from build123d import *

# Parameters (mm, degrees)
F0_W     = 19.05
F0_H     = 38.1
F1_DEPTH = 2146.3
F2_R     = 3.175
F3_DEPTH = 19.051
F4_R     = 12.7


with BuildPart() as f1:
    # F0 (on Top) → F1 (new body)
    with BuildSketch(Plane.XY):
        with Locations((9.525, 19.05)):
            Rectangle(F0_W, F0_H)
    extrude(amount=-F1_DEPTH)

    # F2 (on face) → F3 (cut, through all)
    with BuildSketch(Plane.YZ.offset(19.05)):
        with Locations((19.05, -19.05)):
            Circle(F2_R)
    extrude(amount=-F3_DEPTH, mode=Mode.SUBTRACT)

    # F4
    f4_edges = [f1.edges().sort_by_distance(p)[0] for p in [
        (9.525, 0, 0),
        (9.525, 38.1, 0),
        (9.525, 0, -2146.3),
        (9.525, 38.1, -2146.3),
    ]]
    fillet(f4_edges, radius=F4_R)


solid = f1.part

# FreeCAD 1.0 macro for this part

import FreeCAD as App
import Part
import Sketcher
from FreeCAD import Vector
Q = App.Units.Quantity


def edges_at(feature, points):
    """Names of the edges that pass closest to the given points."""
    edges = feature.Shape.Edges
    near = lambda p: min(range(len(edges)), key=lambda i: edges[i].distToShape(Part.Vertex(*p))[0])
    return sorted({f"Edge{near(p) + 1}" for p in points})

doc = App.newDocument("Part")
body = doc.addObject("PartDesign::Body", "Body")

sketch1 = body.newObject("Sketcher::SketchObject", "Sketch")
sketch1.AttachmentSupport = (doc.getObject("XY_Plane"), [""])
sketch1.MapMode = "FlatFace"
sketch1.addGeometry(Part.LineSegment(Vector(0, 38, 0), Vector(0, 0, 0)), False)
sketch1.addGeometry(Part.LineSegment(Vector(0, 0, 0), Vector(19, 0, 0)), False)
sketch1.addGeometry(Part.LineSegment(Vector(19, 0, 0), Vector(19, 38, 0)), False)
sketch1.addGeometry(Part.LineSegment(Vector(19, 38, 0), Vector(0, 38, 0)), False)
sketch1.addConstraint(Sketcher.Constraint("Coincident", 0, 2, 1, 1))
sketch1.addConstraint(Sketcher.Constraint("Coincident", 1, 2, 2, 1))
sketch1.addConstraint(Sketcher.Constraint("Coincident", 2, 2, 3, 1))
sketch1.addConstraint(Sketcher.Constraint("Coincident", 3, 2, 0, 1))
sketch1.addConstraint(Sketcher.Constraint("Vertical", 0))
sketch1.addConstraint(Sketcher.Constraint("Horizontal", 1))
sketch1.addConstraint(Sketcher.Constraint("Vertical", 2))
sketch1.addConstraint(Sketcher.Constraint("Horizontal", 3))
sketch1.addConstraint(Sketcher.Constraint("Coincident", 0, 2, -1, 1))
sketch1.addConstraint(Sketcher.Constraint("DistanceY", 0, 2, 0, 1, Q("1.5 in")))
sketch1.addConstraint(Sketcher.Constraint("DistanceX", 1, 1, 1, 2, Q("0.75 in")))
pad1 = body.newObject("PartDesign::Pad", "Pad")
pad1.Profile = sketch1
pad1.Length = Q("84.5 in")
pad1.Reversed = True

sketch2 = body.newObject("Sketcher::SketchObject", "Sketch001")
sketch2.AttachmentSupport = (doc.getObject("YZ_Plane"), [""])
sketch2.MapMode = "FlatFace"
sketch2.AttachmentOffset = App.Placement(Vector(0, 0, 0.75 * 25.4), App.Rotation())
sketch2.addGeometry(Part.Circle(Vector(19.1, -19.1, 0), Vector(0, 0, 1), 3.2), False)
sketch2.addConstraint(Sketcher.Constraint("Diameter", 0, Q("0.25 in")))
sketch2.addConstraint(Sketcher.Constraint("DistanceX", -1, 1, 0, 3, Q("0.75 in")))
sketch2.addConstraint(Sketcher.Constraint("DistanceY", 0, 3, -1, 1, Q("0.75 in")))
pocket1 = body.newObject("PartDesign::Pocket", "Pocket")
pocket1.Profile = sketch2
pocket1.Type = "ThroughAll"
doc.recompute()

fillet = body.newObject("PartDesign::Fillet", "Fillet")
fillet.Base = (pocket1, edges_at(pocket1, [
    (9.525, 0, 0),
    (9.525, 38.1, 0),
    (9.525, 0, -2146.3),
    (9.525, 38.1, -2146.3),
]))
fillet.Radius = Q("0.5 in")

doc.recompute()
